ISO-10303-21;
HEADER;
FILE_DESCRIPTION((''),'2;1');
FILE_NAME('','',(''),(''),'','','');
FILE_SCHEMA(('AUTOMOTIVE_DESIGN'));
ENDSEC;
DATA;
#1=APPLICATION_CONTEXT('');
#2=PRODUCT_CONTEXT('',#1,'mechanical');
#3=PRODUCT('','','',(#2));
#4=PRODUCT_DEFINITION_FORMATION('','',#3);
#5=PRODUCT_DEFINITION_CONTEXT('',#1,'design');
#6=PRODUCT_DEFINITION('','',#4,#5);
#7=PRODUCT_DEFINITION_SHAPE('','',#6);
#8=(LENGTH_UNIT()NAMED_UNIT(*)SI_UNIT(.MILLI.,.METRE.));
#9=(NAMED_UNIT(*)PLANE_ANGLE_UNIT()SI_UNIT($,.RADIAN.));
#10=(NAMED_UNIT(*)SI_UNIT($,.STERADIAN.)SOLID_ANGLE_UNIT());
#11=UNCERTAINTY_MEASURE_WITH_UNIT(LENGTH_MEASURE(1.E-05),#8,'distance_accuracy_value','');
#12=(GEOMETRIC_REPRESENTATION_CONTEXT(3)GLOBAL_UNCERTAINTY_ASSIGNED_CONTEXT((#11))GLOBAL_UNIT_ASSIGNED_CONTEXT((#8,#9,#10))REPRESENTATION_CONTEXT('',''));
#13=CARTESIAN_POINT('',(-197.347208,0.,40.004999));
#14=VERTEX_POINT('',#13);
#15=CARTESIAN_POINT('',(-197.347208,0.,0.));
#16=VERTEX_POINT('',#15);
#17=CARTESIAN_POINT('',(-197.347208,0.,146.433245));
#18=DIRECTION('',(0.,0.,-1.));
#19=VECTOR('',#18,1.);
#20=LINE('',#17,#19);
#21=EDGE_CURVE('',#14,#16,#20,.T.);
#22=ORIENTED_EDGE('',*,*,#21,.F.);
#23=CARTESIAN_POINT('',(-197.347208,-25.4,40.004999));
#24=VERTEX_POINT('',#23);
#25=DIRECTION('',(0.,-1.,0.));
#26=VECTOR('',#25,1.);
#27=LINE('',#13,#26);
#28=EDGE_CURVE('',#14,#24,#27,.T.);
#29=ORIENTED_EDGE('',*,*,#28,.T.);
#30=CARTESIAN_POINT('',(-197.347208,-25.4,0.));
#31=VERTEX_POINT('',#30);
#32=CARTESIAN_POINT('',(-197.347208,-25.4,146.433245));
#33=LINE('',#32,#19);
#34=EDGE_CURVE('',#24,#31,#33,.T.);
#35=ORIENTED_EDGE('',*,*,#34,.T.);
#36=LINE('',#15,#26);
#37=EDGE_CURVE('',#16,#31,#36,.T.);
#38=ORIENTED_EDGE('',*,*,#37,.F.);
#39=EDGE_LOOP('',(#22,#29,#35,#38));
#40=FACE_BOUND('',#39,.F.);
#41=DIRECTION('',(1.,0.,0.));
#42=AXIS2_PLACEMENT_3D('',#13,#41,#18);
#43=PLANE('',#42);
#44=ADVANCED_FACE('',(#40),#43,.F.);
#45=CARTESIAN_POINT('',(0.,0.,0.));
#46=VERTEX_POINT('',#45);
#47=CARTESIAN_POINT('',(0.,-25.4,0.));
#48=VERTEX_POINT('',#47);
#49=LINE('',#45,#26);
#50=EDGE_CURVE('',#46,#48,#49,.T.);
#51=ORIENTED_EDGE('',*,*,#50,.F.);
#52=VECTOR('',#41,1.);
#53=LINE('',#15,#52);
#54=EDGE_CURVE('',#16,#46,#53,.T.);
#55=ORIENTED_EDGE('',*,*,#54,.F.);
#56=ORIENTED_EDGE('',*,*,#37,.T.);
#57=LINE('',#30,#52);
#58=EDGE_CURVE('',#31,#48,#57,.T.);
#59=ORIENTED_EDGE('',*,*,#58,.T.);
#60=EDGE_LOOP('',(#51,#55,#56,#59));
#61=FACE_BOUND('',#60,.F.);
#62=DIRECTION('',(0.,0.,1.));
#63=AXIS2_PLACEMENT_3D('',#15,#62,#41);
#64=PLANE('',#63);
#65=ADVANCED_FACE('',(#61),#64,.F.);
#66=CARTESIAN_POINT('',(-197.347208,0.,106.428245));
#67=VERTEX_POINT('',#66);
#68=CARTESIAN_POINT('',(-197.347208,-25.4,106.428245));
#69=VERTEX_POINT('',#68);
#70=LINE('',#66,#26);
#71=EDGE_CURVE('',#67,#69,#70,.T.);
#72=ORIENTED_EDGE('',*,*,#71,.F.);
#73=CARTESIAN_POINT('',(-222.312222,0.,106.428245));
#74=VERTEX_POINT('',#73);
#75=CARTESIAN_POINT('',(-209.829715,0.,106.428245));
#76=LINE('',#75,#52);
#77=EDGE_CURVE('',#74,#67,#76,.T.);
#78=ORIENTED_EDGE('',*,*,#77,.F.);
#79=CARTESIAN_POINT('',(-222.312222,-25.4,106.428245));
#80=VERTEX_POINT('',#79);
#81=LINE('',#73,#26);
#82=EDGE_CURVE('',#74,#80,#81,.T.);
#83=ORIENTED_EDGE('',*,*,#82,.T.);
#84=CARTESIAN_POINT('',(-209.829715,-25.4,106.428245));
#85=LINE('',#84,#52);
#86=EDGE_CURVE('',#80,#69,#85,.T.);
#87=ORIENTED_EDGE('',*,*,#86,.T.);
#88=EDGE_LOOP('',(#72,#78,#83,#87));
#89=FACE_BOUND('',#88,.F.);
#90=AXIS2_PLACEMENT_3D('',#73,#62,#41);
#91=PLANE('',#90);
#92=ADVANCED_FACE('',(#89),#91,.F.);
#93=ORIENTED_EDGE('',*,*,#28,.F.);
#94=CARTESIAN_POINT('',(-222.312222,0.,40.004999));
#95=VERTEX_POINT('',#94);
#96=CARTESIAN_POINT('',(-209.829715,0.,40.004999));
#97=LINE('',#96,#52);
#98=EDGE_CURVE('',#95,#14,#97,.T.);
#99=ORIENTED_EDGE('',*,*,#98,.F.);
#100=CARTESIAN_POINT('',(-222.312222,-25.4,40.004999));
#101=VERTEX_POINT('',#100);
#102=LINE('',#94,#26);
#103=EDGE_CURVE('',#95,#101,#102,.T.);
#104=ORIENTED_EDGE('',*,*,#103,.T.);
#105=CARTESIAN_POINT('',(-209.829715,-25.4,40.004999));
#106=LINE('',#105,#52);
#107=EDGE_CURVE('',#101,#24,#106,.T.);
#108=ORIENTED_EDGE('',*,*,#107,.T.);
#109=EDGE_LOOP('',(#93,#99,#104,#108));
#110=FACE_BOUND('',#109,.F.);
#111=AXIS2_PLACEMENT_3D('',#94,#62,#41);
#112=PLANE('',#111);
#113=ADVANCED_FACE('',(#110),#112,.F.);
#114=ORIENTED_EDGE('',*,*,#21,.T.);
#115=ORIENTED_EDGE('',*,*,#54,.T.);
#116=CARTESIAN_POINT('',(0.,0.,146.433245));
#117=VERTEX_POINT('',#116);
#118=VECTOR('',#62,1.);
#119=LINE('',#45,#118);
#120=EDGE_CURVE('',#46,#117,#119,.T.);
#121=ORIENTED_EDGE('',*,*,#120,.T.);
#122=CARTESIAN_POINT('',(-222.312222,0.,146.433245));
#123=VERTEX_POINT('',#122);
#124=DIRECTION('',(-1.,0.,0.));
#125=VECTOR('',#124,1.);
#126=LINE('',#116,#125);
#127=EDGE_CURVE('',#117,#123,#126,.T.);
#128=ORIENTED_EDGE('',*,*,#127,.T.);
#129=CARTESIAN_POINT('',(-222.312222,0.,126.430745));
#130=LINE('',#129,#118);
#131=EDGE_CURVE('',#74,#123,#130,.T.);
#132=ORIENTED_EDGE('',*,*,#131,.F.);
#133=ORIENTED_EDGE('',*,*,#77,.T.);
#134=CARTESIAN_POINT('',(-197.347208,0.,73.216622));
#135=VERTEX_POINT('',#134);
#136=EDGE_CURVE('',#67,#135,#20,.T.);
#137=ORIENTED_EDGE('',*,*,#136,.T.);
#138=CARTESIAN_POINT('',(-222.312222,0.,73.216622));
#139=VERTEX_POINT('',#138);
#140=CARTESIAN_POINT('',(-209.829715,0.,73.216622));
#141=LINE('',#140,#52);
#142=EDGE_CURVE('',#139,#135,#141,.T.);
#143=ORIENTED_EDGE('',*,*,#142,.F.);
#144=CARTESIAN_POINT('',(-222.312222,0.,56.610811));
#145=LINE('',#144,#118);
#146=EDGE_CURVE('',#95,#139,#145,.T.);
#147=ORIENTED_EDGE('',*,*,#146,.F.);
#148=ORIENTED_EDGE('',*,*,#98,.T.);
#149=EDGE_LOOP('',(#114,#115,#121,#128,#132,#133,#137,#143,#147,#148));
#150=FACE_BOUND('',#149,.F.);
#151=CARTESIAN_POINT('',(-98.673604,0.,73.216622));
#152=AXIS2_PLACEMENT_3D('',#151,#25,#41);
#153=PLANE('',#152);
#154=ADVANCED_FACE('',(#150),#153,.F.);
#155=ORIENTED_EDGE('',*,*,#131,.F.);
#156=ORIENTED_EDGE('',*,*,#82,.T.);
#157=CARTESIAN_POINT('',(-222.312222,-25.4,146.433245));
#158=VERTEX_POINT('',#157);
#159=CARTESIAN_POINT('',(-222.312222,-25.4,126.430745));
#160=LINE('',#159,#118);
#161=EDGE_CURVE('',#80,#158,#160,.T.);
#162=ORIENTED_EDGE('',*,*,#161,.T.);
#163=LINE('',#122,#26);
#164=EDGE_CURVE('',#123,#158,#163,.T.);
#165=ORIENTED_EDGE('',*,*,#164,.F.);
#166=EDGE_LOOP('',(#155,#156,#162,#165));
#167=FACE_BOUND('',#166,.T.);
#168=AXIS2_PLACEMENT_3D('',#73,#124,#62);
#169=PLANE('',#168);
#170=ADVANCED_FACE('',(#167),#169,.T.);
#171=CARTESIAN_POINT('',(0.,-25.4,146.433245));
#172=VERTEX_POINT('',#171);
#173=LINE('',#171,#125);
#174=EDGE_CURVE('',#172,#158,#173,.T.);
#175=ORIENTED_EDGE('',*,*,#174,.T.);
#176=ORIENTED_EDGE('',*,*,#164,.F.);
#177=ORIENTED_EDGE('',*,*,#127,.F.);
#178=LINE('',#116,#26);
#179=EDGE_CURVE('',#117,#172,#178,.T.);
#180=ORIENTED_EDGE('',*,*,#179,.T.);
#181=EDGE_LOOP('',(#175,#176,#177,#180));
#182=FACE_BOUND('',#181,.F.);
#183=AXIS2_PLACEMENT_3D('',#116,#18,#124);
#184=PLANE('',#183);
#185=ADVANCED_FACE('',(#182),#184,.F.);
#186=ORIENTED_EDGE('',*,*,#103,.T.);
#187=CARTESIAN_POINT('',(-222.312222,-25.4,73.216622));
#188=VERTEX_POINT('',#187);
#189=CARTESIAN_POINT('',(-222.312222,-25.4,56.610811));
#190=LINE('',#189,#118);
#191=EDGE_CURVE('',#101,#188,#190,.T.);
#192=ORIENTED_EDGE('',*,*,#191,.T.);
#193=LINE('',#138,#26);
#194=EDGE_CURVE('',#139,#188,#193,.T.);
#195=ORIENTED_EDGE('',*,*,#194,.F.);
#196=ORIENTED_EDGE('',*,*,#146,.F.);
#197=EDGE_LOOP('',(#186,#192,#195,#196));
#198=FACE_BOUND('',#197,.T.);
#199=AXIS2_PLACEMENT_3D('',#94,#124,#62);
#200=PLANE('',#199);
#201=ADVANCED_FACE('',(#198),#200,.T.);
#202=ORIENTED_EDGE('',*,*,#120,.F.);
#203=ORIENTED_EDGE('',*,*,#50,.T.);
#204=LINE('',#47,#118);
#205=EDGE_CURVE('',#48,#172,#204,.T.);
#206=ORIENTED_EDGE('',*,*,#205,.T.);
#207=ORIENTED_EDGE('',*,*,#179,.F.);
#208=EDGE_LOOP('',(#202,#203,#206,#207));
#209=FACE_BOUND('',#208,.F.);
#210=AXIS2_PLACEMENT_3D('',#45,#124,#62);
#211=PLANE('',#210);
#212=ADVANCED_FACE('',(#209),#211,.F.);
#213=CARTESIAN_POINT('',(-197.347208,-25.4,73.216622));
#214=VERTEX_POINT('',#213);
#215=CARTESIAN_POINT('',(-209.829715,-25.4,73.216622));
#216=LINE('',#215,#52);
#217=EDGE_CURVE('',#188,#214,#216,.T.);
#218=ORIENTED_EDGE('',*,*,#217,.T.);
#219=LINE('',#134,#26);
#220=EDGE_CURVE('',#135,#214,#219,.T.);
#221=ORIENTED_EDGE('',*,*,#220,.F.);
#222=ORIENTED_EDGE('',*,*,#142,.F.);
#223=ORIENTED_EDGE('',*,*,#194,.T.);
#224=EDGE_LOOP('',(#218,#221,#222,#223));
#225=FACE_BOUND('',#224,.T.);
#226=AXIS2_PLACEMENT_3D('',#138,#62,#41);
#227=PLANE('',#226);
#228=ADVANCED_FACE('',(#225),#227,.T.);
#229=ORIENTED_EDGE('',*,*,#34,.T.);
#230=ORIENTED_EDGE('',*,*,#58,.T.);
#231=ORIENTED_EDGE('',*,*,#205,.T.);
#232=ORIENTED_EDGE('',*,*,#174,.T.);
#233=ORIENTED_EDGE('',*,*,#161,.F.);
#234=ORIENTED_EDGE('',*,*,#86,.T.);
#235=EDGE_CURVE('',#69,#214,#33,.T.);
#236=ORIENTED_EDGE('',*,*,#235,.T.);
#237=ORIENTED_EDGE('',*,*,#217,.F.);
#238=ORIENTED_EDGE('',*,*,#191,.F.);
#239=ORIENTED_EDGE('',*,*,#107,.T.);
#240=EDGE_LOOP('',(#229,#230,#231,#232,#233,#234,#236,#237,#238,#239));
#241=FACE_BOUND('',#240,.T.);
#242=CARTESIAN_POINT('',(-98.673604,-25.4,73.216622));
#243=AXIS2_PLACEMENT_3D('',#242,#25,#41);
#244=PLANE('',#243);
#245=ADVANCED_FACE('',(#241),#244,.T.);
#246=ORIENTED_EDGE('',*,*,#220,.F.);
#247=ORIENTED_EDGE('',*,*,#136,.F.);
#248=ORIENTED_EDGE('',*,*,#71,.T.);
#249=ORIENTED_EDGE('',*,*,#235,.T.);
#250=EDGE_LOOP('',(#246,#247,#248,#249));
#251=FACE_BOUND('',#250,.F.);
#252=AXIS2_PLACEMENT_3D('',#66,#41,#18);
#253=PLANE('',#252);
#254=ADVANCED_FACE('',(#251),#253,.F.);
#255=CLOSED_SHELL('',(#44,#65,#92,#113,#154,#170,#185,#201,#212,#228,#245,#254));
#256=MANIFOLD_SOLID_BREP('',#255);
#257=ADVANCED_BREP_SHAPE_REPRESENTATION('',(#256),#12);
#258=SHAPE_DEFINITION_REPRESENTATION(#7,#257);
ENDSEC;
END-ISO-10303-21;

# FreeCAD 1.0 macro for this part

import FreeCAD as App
import Part
import Sketcher
Q = App.Units.Quantity

doc = App.newDocument("Part")
params = doc.addObject("Spreadsheet::Sheet", "Params")
for row, (alias, value) in enumerate([
    ("sketch1_height", "1.575 in"),
    ("pad1_length", "1 in"),
], start=1):
    params.set(f"A{row}", alias)
    params.set(f"B{row}", "=" + value)
    params.setAlias(f"B{row}", alias)

body = doc.addObject("PartDesign::Body", "Body")

sketch1 = body.newObject("Sketcher::SketchObject", "Sketch")
sketch1.AttachmentSupport = (doc.getObject("XZ_Plane"), [""])
sketch1.MapMode = "FlatFace"
sketch1.addGeometry(Part.LineSegment(App.Vector(-197, 0, 0), App.Vector(0, 0, 0)), False)
sketch1.addGeometry(Part.LineSegment(App.Vector(0, 0, 0), App.Vector(0, 146, 0)), False)
sketch1.addGeometry(Part.LineSegment(App.Vector(0, 146, 0), App.Vector(-222, 146, 0)), False)
sketch1.addGeometry(Part.LineSegment(App.Vector(-222, 146, 0), App.Vector(-222, 106, 0)), False)
sketch1.addGeometry(Part.LineSegment(App.Vector(-222, 106, 0), App.Vector(-197, 106, 0)), False)
sketch1.addGeometry(Part.LineSegment(App.Vector(-197, 106, 0), App.Vector(-197, 73, 0)), False)
sketch1.addGeometry(Part.LineSegment(App.Vector(-197, 73, 0), App.Vector(-222, 73, 0)), False)
sketch1.addGeometry(Part.LineSegment(App.Vector(-222, 73, 0), App.Vector(-222, 40, 0)), False)
sketch1.addGeometry(Part.LineSegment(App.Vector(-222, 40, 0), App.Vector(-197, 40, 0)), False)
sketch1.addGeometry(Part.LineSegment(App.Vector(-197, 40, 0), App.Vector(-197, 0, 0)), False)
sketch1.addConstraint(Sketcher.Constraint("Coincident", 0, 2, 1, 1))
sketch1.addConstraint(Sketcher.Constraint("Coincident", 1, 2, 2, 1))
sketch1.addConstraint(Sketcher.Constraint("Coincident", 2, 2, 3, 1))
sketch1.addConstraint(Sketcher.Constraint("Coincident", 3, 2, 4, 1))
sketch1.addConstraint(Sketcher.Constraint("Coincident", 4, 2, 5, 1))
sketch1.addConstraint(Sketcher.Constraint("Coincident", 5, 2, 6, 1))
sketch1.addConstraint(Sketcher.Constraint("Coincident", 6, 2, 7, 1))
sketch1.addConstraint(Sketcher.Constraint("Coincident", 7, 2, 8, 1))
sketch1.addConstraint(Sketcher.Constraint("Coincident", 8, 2, 9, 1))
sketch1.addConstraint(Sketcher.Constraint("Coincident", 9, 2, 0, 1))
sketch1.addConstraint(Sketcher.Constraint("Horizontal", 0))
sketch1.addConstraint(Sketcher.Constraint("Vertical", 1))
sketch1.addConstraint(Sketcher.Constraint("Horizontal", 2))
sketch1.addConstraint(Sketcher.Constraint("Vertical", 3))
sketch1.addConstraint(Sketcher.Constraint("Horizontal", 4))
sketch1.addConstraint(Sketcher.Constraint("Vertical", 5))
sketch1.addConstraint(Sketcher.Constraint("Horizontal", 6))
sketch1.addConstraint(Sketcher.Constraint("Vertical", 7))
sketch1.addConstraint(Sketcher.Constraint("Horizontal", 8))
sketch1.addConstraint(Sketcher.Constraint("Vertical", 9))
sketch1.addConstraint(Sketcher.Constraint("Coincident", 0, 2, -1, 1))
sketch1.addConstraint(Sketcher.Constraint("Vertical", 3, 2, 6, 2))
sketch1.addConstraint(Sketcher.Constraint("Vertical", 5, 2, 8, 2))
sketch1.addConstraint(Sketcher.Constraint("Equal", 5, 7))
sketch1.addConstraint(Sketcher.Constraint("Equal", 3, 9))
sketch1.addConstraint(Sketcher.Constraint("DistanceY", 3, 2, 3, 1, Q("1.575 in")))
sketch1.addConstraint(Sketcher.Constraint("DistanceX", 0, 1, 0, 2, Q("197.347208 mm")))
sketch1.addConstraint(Sketcher.Constraint("DistanceX", 2, 2, 2, 1, Q("222.312222 mm")))
sketch1.addConstraint(Sketcher.Constraint("DistanceY", 1, 1, 1, 2, Q("146.433245 mm")))
sketch1.setExpression("Constraints[25]", "Params.sketch1_height")
pad1 = body.newObject("PartDesign::Pad", "Pad")
pad1.Profile = sketch1
pad1.setExpression("Length", "Params.pad1_length")

doc.recompute()
